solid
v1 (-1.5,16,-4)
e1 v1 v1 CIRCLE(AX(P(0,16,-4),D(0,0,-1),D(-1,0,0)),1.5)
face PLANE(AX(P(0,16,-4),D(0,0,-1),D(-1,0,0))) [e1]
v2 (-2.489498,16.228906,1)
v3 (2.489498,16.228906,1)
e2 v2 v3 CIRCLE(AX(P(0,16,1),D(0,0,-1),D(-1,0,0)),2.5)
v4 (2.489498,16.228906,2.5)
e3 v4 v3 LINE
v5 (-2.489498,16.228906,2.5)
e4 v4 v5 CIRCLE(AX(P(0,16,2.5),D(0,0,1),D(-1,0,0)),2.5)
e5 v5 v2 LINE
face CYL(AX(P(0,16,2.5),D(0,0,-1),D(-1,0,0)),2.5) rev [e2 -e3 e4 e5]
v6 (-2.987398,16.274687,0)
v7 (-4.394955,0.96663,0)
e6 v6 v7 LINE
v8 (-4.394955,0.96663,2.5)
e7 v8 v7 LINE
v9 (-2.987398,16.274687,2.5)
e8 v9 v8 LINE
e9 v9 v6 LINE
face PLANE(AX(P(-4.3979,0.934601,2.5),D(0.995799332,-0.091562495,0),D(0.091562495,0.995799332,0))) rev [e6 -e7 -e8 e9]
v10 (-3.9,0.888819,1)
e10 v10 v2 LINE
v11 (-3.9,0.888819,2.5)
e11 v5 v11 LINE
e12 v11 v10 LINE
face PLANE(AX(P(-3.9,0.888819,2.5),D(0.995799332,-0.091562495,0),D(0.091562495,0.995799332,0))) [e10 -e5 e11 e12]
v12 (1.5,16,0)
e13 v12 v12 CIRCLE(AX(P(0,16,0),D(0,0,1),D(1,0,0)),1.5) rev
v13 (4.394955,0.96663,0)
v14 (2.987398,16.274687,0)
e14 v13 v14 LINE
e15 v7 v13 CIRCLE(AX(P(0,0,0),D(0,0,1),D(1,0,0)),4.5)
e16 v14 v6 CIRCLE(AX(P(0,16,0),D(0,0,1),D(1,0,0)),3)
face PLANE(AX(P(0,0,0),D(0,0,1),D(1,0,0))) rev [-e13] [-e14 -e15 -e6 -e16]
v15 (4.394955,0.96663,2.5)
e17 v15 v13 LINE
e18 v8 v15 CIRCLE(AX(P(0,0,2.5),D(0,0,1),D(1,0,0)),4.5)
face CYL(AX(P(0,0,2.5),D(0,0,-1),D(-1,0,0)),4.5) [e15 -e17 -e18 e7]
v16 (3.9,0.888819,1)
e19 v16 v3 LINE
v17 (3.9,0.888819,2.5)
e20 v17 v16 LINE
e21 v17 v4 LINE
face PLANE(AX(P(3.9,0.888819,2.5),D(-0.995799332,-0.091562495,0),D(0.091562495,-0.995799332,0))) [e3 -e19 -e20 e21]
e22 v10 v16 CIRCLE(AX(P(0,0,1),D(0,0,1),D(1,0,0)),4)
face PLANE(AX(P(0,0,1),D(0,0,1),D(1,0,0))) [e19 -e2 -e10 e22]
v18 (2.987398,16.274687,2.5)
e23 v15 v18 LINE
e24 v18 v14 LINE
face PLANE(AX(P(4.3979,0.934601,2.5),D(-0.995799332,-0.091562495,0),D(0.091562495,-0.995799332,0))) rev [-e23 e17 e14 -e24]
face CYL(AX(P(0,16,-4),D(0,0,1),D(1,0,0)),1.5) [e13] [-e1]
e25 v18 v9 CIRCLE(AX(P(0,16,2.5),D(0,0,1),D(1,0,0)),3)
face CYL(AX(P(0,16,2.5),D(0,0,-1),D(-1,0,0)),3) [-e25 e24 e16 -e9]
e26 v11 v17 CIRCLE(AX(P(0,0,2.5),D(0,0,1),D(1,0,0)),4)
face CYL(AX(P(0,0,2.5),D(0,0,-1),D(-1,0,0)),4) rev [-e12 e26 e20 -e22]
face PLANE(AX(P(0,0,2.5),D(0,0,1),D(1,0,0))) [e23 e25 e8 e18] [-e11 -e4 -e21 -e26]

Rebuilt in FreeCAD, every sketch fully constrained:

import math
import FreeCAD as App
import Part
import Sketcher
Q = App.Units.Quantity

doc = App.newDocument("Part")
body = doc.addObject("PartDesign::Body", "Body")

# Sketch on XY plane
sketch1 = doc.addObject("Sketcher::SketchObject", "Sketch")
body.addObject(sketch1)
sketch1.AttachmentSupport = (doc.XY_Plane, [""])
sketch1.MapMode = "FlatFace"
sketch1.addGeometry([
    Part.LineSegment(App.Vector(-2.5, 16.2, 0), App.Vector(-3.9, 0.9, 0)),
    Part.ArcOfCircle(Part.Circle(App.Vector(0, 0, 0), App.Vector(0, 0, 1), 4), math.radians(167), math.radians(373)),
    Part.LineSegment(App.Vector(3.9, 0.9, 0), App.Vector(2.5, 16.2, 0)),
    Part.ArcOfCircle(Part.Circle(App.Vector(0, 16, 0), App.Vector(0, 0, 1), 2.5), math.radians(5), math.radians(175)),
], False)
sketch1.addConstraint([
    Sketcher.Constraint("Coincident", 0, 2, 1, 1),
    Sketcher.Constraint("Coincident", 1, 2, 2, 1),
    Sketcher.Constraint("Tangent", 2, 2, 3, 1),
    Sketcher.Constraint("Tangent", 3, 2, 0, 1),
    Sketcher.Constraint("Coincident", 1, 3, -1, 1),
    Sketcher.Constraint("Symmetric", 2, 2, 3, 2, -2),
    Sketcher.Constraint("Radius", 1, Q("4 mm")),
    Sketcher.Constraint("Radius", 3, Q("2.5 mm")),
    Sketcher.Constraint("DistanceY", -1, 1, 3, 3, Q("16 mm")),
    Sketcher.Constraint("DistanceX", 0, 2, -1, 1, Q("3.9 mm")),
])
pad1 = doc.addObject("PartDesign::Pad", "Pad")
body.addObject(pad1)
pad1.Profile = sketch1
pad1.Length = 1

# Sketch on XY plane
sketch2 = doc.addObject("Sketcher::SketchObject", "Sketch001")
body.addObject(sketch2)
sketch2.AttachmentSupport = (doc.XY_Plane, [""])
sketch2.MapMode = "FlatFace"
sketch2.addGeometry([
    Part.LineSegment(App.Vector(-3, 16.3, 0), App.Vector(-4.4, 1, 0)),  # 0
    Part.ArcOfCircle(Part.Circle(App.Vector(0, 0, 0), App.Vector(0, 0, 1), 4.5), math.radians(168), math.radians(372)),  # 1
    Part.LineSegment(App.Vector(4.4, 1, 0), App.Vector(3, 16.3, 0)),  # 2
    Part.ArcOfCircle(Part.Circle(App.Vector(0, 16, 0), App.Vector(0, 0, 1), 3), math.radians(5), math.radians(175)),  # 3
    Part.LineSegment(App.Vector(-3.9, 0.9, 0), App.Vector(-2.5, 16.2, 0)),  # 4
    Part.ArcOfCircle(Part.Circle(App.Vector(0, 16, 0), App.Vector(0, 0, 1), 2.5), math.radians(5), math.radians(175)),  # 5
    Part.LineSegment(App.Vector(2.5, 16.2, 0), App.Vector(3.9, 0.9, 0)),  # 6
    Part.ArcOfCircle(Part.Circle(App.Vector(0, 0, 0), App.Vector(0, 0, 1), 4), math.radians(167), math.radians(373)),  # 7
], False)
sketch2.addConstraint([
    Sketcher.Constraint("Coincident", 0, 2, 1, 1),
    Sketcher.Constraint("Coincident", 1, 2, 2, 1),
    Sketcher.Constraint("Tangent", 2, 2, 3, 1),
    Sketcher.Constraint("Tangent", 3, 2, 0, 1),
    Sketcher.Constraint("Tangent", 4, 2, 5, 2),
    Sketcher.Constraint("Tangent", 5, 1, 6, 1),
    Sketcher.Constraint("Coincident", 6, 2, 7, 2),
    Sketcher.Constraint("Coincident", 7, 1, 4, 1),
    Sketcher.Constraint("Coincident", 1, 3, -1, 1),
    Sketcher.Constraint("Coincident", 7, 3, -1, 1),
    Sketcher.Constraint("Coincident", 5, 3, 3, 3),
    Sketcher.Constraint("Symmetric", 2, 2, 3, 2, -2),
    Sketcher.Constraint("Parallel", 0, 4),
    Sketcher.Constraint("Parallel", 2, 6),
    Sketcher.Constraint("Radius", 3, Q("3 mm")),
    Sketcher.Constraint("Radius", 7, Q("4 mm")),
    Sketcher.Constraint("Radius", 1, Q("4.5 mm")),
    Sketcher.Constraint("Radius", 5, Q("2.5 mm")),
    Sketcher.Constraint("DistanceY", -1, 1, 3, 3, Q("16 mm")),
    Sketcher.Constraint("DistanceX", -1, 1, 6, 2, Q("3.9 mm")),
])
pad2 = doc.addObject("PartDesign::Pad", "Pad001")
body.addObject(pad2)
pad2.Profile = sketch2
pad2.Length = 2.5

# Sketch on XY plane
sketch3 = doc.addObject("Sketcher::SketchObject", "Sketch002")
body.addObject(sketch3)
sketch3.AttachmentSupport = (doc.XY_Plane, [""])
sketch3.MapMode = "FlatFace"
sketch3.addGeometry(Part.Circle(App.Vector(0, 16, 0), App.Vector(0, 0, 1), 1.5), False)
sketch3.addConstraint([
    Sketcher.Constraint("PointOnObject", 0, 3, -2),
    Sketcher.Constraint("Diameter", 0, Q("3 mm")),
    Sketcher.Constraint("DistanceY", -1, 1, 0, 3, Q("16 mm")),
])
pad3 = doc.addObject("PartDesign::Pad", "Pad002")
body.addObject(pad3)
pad3.Profile = sketch3
pad3.Length = 4
pad3.Reversed = True

doc.recompute()
